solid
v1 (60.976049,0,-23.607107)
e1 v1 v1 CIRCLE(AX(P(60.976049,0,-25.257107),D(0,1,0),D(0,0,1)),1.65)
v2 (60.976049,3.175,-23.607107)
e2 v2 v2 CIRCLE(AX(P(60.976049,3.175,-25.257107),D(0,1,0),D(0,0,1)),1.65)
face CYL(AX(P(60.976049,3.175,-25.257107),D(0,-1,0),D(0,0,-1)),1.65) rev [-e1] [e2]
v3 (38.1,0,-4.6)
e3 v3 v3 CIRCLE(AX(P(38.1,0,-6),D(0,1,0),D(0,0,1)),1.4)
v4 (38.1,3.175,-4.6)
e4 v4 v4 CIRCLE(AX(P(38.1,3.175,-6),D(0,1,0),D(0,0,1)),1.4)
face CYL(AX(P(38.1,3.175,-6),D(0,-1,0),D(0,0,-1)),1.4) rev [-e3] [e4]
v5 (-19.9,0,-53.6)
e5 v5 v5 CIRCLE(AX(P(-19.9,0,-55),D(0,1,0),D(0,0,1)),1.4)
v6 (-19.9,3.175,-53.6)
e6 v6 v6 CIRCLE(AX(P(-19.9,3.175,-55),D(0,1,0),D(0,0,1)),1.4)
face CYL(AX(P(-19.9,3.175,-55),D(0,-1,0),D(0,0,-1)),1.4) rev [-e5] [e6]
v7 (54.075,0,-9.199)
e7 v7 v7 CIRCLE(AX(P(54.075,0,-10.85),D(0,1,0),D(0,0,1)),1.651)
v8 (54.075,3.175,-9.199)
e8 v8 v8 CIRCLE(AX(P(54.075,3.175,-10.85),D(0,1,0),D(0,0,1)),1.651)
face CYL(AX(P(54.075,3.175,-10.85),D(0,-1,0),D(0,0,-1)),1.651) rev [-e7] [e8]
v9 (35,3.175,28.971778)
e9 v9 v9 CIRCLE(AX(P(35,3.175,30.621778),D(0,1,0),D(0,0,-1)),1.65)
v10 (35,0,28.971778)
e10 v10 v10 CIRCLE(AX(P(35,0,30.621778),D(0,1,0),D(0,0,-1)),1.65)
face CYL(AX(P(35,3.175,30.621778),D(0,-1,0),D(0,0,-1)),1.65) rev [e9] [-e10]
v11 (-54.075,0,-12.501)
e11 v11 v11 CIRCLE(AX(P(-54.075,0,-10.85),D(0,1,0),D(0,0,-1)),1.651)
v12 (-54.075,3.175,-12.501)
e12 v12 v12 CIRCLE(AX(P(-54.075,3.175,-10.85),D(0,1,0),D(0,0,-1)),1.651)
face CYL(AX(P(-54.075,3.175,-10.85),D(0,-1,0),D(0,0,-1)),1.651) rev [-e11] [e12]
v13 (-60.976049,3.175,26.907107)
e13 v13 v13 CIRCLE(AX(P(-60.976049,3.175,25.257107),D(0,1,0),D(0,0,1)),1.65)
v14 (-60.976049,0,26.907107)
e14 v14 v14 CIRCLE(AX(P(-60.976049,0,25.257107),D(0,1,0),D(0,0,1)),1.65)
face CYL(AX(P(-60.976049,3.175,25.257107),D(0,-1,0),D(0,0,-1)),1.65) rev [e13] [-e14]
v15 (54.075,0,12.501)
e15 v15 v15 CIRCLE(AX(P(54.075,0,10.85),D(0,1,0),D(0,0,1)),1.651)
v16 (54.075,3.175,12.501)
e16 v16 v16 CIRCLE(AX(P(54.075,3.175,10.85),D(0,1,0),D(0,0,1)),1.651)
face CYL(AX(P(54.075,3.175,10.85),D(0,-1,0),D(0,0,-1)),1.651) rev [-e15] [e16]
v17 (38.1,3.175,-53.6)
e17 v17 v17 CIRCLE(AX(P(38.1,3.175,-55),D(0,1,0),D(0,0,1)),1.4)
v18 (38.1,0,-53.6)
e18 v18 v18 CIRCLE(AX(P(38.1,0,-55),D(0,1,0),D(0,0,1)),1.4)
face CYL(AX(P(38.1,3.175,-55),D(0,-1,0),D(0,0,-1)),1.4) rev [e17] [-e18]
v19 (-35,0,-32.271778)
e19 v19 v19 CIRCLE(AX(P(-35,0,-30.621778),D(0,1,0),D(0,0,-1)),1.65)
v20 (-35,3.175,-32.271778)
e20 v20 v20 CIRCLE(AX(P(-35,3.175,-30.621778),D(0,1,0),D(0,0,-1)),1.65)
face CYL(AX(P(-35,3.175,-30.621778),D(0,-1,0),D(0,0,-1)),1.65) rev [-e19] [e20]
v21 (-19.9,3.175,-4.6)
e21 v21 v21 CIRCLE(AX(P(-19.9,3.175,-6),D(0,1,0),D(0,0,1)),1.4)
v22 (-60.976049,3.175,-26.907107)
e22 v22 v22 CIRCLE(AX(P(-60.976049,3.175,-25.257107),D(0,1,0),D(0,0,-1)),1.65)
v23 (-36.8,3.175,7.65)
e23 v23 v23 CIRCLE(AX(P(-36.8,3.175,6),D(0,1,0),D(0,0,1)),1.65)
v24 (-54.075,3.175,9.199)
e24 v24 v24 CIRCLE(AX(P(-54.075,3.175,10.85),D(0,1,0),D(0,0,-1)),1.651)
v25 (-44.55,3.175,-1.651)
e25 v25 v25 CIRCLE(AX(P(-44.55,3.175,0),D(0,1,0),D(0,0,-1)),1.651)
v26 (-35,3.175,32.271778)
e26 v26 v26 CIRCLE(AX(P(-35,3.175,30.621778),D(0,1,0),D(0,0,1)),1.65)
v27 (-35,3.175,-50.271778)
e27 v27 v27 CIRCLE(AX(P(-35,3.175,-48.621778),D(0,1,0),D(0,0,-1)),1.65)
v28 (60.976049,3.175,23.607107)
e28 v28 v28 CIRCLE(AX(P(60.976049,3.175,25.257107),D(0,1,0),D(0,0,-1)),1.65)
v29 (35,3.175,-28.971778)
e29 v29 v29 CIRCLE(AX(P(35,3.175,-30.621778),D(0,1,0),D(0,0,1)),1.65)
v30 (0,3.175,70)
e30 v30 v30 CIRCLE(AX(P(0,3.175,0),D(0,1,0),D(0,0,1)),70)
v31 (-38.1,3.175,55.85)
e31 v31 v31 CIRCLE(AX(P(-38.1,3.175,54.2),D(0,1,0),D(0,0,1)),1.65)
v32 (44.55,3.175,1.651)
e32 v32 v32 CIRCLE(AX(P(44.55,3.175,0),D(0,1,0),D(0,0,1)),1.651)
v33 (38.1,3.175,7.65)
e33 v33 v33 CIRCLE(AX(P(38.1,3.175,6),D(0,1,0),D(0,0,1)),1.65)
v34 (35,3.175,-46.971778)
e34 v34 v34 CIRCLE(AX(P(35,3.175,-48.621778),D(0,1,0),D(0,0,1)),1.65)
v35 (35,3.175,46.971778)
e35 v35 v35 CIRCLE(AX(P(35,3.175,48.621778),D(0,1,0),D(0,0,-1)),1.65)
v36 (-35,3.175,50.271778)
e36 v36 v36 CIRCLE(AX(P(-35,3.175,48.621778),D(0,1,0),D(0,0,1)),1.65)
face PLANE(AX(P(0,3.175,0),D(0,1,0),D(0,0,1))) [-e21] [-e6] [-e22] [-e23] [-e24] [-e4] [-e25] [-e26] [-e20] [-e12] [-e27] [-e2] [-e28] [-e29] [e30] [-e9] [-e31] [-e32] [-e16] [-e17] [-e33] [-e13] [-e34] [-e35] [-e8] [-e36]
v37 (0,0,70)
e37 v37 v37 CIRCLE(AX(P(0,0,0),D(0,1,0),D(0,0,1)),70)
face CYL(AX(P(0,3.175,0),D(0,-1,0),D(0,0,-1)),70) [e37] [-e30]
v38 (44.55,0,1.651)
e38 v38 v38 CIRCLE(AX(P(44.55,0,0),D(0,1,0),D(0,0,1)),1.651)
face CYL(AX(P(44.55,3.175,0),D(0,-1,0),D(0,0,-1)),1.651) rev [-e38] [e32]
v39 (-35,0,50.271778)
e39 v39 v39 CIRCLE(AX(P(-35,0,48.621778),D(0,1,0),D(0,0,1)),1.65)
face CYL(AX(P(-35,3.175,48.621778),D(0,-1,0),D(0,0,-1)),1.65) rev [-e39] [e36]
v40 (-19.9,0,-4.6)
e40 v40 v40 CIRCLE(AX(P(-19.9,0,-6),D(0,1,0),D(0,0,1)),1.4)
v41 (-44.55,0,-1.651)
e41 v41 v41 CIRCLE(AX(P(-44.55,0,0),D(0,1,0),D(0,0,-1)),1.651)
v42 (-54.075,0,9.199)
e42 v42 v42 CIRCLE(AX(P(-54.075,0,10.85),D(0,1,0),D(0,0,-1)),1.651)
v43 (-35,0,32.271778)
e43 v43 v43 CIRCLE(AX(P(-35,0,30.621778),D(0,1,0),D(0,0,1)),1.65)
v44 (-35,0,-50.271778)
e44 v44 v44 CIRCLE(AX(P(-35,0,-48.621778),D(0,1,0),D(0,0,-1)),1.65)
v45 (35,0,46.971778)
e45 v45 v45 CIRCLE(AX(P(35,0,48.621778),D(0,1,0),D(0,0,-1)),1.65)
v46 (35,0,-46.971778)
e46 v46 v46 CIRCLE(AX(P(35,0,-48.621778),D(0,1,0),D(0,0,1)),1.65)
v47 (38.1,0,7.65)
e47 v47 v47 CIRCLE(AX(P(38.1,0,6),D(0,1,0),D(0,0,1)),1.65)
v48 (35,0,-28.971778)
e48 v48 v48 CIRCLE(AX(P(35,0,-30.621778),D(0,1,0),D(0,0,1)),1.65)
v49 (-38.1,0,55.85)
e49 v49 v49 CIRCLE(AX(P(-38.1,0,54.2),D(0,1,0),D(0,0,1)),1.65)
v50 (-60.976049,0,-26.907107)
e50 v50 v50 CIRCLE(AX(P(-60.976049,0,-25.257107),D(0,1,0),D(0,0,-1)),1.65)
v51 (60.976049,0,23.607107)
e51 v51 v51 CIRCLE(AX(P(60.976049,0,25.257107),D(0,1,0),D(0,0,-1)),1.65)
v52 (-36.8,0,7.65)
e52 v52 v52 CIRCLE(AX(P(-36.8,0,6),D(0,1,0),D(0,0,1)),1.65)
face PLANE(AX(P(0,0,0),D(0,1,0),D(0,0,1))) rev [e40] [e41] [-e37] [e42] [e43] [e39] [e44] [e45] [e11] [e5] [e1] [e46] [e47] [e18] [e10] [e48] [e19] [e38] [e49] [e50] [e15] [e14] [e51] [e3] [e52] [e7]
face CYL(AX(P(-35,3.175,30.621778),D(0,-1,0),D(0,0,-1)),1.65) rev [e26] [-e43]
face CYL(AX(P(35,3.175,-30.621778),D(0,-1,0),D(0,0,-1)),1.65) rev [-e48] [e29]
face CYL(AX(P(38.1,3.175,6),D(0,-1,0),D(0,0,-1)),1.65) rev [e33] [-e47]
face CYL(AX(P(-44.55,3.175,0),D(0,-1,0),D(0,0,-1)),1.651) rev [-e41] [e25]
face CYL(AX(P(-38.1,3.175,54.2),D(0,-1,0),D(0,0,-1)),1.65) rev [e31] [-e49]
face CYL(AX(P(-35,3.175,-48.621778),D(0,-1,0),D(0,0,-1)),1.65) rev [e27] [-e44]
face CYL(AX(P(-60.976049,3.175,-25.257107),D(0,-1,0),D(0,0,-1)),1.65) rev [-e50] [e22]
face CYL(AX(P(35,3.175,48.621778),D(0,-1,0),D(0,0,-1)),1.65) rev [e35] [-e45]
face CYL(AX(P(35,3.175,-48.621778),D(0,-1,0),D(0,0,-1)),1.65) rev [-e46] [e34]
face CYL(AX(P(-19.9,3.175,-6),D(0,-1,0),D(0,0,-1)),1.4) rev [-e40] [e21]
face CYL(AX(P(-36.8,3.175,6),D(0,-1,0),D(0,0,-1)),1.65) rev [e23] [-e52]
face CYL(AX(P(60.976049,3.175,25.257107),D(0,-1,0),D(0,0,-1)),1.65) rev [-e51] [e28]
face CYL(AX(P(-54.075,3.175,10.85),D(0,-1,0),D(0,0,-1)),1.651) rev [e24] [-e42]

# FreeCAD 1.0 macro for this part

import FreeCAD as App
import Part
import Sketcher

V = App.Vector

doc = App.newDocument("Part")
body = doc.addObject("PartDesign::Body", "Body")

# Sketch on XZ plane
sketch1 = body.newObject("Sketcher::SketchObject", "Sketch")
sketch1.AttachmentSupport = (doc.getObject("XZ_Plane"), [""])
sketch1.MapMode = "FlatFace"
sketch1.addGeometry([
    Part.Circle(V(0, 0, 0), V(0, 0, 1), 70),  # 0
    Part.Circle(V(-54.1, 10.8, 0), V(0, 0, 1), 1.7),  # 1
    Part.Circle(V(54.1, 10.8, 0), V(0, 0, 1), 1.7),  # 2
    Part.Circle(V(-44.5, 0, 0), V(0, 0, 1), 1.7),  # 3
    Part.Circle(V(-54.1, -10.8, 0), V(0, 0, 1), 1.7),  # 4
    Part.Circle(V(44.5, 0, 0), V(0, 0, 1), 1.7),  # 5
    Part.Circle(V(54.1, -10.8, 0), V(0, 0, 1), 1.7),  # 6
], False)
sketch1.addConstraint([
    Sketcher.Constraint("Coincident", 0, 3, -1, 1),
    Sketcher.Constraint("Equal", 1, 2),
    Sketcher.Constraint("Equal", 2, 3),
    Sketcher.Constraint("Equal", 3, 4),
    Sketcher.Constraint("Equal", 4, 5),
    Sketcher.Constraint("Equal", 5, 6),
    Sketcher.Constraint("Symmetric", 2, 3, 4, 3, -1, 1),
    Sketcher.Constraint("Symmetric", 3, 3, 5, 3, -1, 1),
    Sketcher.Constraint("Symmetric", 1, 3, 6, 3, -1, 1),
    Sketcher.Constraint("Symmetric", 1, 3, 2, 3, -2),
    Sketcher.Constraint("PointOnObject", 3, 3, -1),
    Sketcher.Constraint("Diameter", 0, 140.0),
    Sketcher.Constraint("Diameter", 1, 3.302),
    Sketcher.Constraint("DistanceY", 4, 3, 1, 3, 21.7),
    Sketcher.Constraint("DistanceX", 3, 3, 5, 3, 89.1),
    Sketcher.Constraint("DistanceX", 1, 3, 2, 3, 108.15),
])
pad1 = body.newObject("PartDesign::Pad", "Pad")
pad1.Profile = sketch1
pad1.Length = 3.175
pad1.Reversed = True

# Sketch on XZ plane
sketch2 = body.newObject("Sketcher::SketchObject", "Sketch001")
sketch2.AttachmentSupport = (doc.getObject("XZ_Plane"), [""])
sketch2.MapMode = "FlatFace"
sketch2.addGeometry([
    Part.Circle(V(61, -25.3, 0), V(0, 0, 1), 1.6),  # 0
    Part.Circle(V(61, 25.3, 0), V(0, 0, 1), 1.6),  # 1
    Part.Circle(V(-61, 25.3, 0), V(0, 0, 1), 1.6),  # 2
    Part.Circle(V(-61, -25.3, 0), V(0, 0, 1), 1.6),  # 3
    Part.Circle(V(35, -48.6, 0), V(0, 0, 1), 1.6),  # 4
    Part.Circle(V(35, -30.6, 0), V(0, 0, 1), 1.6),  # 5
    Part.Circle(V(35, 30.6, 0), V(0, 0, 1), 1.6),  # 6
    Part.Circle(V(35, 48.6, 0), V(0, 0, 1), 1.6),  # 7
    Part.Circle(V(-35, 48.6, 0), V(0, 0, 1), 1.6),  # 8
    Part.Circle(V(-35, 30.6, 0), V(0, 0, 1), 1.6),  # 9
    Part.Circle(V(-35, -30.6, 0), V(0, 0, 1), 1.6),  # 10
    Part.Circle(V(-35, -48.6, 0), V(0, 0, 1), 1.6),  # 11
], False)
sketch2.addConstraint([
    Sketcher.Constraint("Equal", 0, 1),
    Sketcher.Constraint("Equal", 1, 2),
    Sketcher.Constraint("Equal", 2, 3),
    Sketcher.Constraint("Equal", 3, 4),
    Sketcher.Constraint("Equal", 4, 5),
    Sketcher.Constraint("Equal", 5, 6),
    Sketcher.Constraint("Equal", 6, 7),
    Sketcher.Constraint("Equal", 7, 8),
    Sketcher.Constraint("Equal", 8, 9),
    Sketcher.Constraint("Equal", 9, 10),
    Sketcher.Constraint("Equal", 10, 11),
    Sketcher.Constraint("Symmetric", 0, 3, 2, 3, -1, 1),
    Sketcher.Constraint("Symmetric", 1, 3, 3, 3, -1, 1),
    Sketcher.Constraint("Symmetric", 4, 3, 8, 3, -1, 1),
    Sketcher.Constraint("Symmetric", 5, 3, 9, 3, -1, 1),
    Sketcher.Constraint("Symmetric", 6, 3, 10, 3, -1, 1),
    Sketcher.Constraint("Symmetric", 7, 3, 11, 3, -1, 1),
    Sketcher.Constraint("Symmetric", 1, 3, 2, 3, -2),
    Sketcher.Constraint("Symmetric", 7, 3, 8, 3, -2),
    Sketcher.Constraint("Symmetric", 6, 3, 9, 3, -2),
    Sketcher.Constraint("Vertical", 4, 3, 5, 3),
    Sketcher.Constraint("Diameter", 0, 3.3),
    Sketcher.Constraint("DistanceX", -1, 1, 4, 3, 35.0),
    Sketcher.Constraint("DistanceY", 4, 3, 5, 3, 18.0),
    Sketcher.Constraint("DistanceX", 2, 3, 1, 3, 121.952098),
    Sketcher.Constraint("DistanceY", 4, 3, -1, 1, 48.621778),
    Sketcher.Constraint("DistanceY", 4, 3, 0, 3, 23.364672),
])
pocket1 = body.newObject("PartDesign::Pocket", "Pocket")
pocket1.Profile = sketch2
pocket1.Length = 3.175

# Sketch on XZ plane
sketch3 = body.newObject("Sketcher::SketchObject", "Sketch002")
sketch3.AttachmentSupport = (doc.getObject("XZ_Plane"), [""])
sketch3.MapMode = "FlatFace"
sketch3.addGeometry([
    Part.Circle(V(-19.9, -55, 0), V(0, 0, 1), 1.4),  # 0
    Part.Circle(V(38.1, -55, 0), V(0, 0, 1), 1.4),  # 1
    Part.Circle(V(38.1, -6, 0), V(0, 0, 1), 1.4),  # 2
    Part.Circle(V(-19.9, -6, 0), V(0, 0, 1), 1.4),  # 3
    Part.Circle(V(-38.1, 54.2, 0), V(0, 0, 1), 1.6),  # 4
    Part.Circle(V(-36.8, 6, 0), V(0, 0, 1), 1.6),  # 5
    Part.Circle(V(38.1, 6, 0), V(0, 0, 1), 1.6),  # 6
], False)
sketch3.addConstraint([
    Sketcher.Constraint("Equal", 0, 1),
    Sketcher.Constraint("Equal", 1, 2),
    Sketcher.Constraint("Equal", 2, 3),
    Sketcher.Constraint("Equal", 4, 5),
    Sketcher.Constraint("Equal", 5, 6),
    Sketcher.Constraint("Symmetric", 2, 3, 6, 3, -1),
    Sketcher.Constraint("Horizontal", 0, 3, 1, 3),
    Sketcher.Constraint("Horizontal", 2, 3, 3, 3),
    Sketcher.Constraint("Horizontal", 5, 3, 6, 3),
    Sketcher.Constraint("Vertical", 1, 3, 2, 3),
    Sketcher.Constraint("Vertical", 0, 3, 3, 3),
    Sketcher.Constraint("Diameter", 0, 2.8),
    Sketcher.Constraint("Diameter", 4, 3.3),
    Sketcher.Constraint("DistanceY", 0, 3, -1, 1, 55.0),
    Sketcher.Constraint("DistanceY", 2, 3, -1, 1, 6.0),
    Sketcher.Constraint("DistanceX", 0, 3, 1, 3, 58.0),
    Sketcher.Constraint("DistanceX", 0, 3, -1, 1, 19.9),
    Sketcher.Constraint("DistanceX", 4, 3, -1, 1, 38.1),
    Sketcher.Constraint("DistanceY", -1, 1, 4, 3, 54.2),
    Sketcher.Constraint("DistanceX", 5, 3, -1, 1, 36.8),
])
pocket2 = body.newObject("PartDesign::Pocket", "Pocket001")
pocket2.Profile = sketch3
pocket2.Length = 3.175

doc.recompute()
